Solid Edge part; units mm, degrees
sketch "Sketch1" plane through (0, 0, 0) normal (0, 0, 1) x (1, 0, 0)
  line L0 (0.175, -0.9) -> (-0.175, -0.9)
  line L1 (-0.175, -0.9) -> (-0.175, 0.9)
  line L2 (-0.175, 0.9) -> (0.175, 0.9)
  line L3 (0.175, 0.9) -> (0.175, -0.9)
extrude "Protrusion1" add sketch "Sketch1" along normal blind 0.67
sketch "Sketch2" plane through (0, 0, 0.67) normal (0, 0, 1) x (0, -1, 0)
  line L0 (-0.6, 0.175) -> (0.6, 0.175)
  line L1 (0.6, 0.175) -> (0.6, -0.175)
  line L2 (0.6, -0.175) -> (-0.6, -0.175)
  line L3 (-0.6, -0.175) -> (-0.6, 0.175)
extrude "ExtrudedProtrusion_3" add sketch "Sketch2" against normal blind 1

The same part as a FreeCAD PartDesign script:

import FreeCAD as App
import Part
import Sketcher

V = App.Vector
Q = App.Units.Quantity


def add_polygon(sketch, points):
    """Adds a closed chain of lines whose ends are joined by coincident constraints."""
    first, n = sketch.GeometryCount, len(points)
    for a, b in zip(points, points[1:] + points[:1]):
        sketch.addGeometry(Part.LineSegment(App.Vector(*a, 0), App.Vector(*b, 0)), False)
    for i in range(n):
        sketch.addConstraint(Sketcher.Constraint("Coincident", first + i, 2, first + (i + 1) % n, 1))

doc = App.newDocument("Part")
params = doc.addObject("Spreadsheet::Sheet", "Params")
for row, (alias, value) in enumerate([
    ("sketch1_height", "1.8 mm"),
    ("sketch1_width", "0.35 mm"),
    ("pad1_length", "0.67 mm"),
    ("sketch2_height", "1.2 mm"),
    ("sketch2_width", "0.35 mm"),
    ("pad2_length", "1 mm"),
], start=1):
    params.set(f"A{row}", alias)
    params.set(f"B{row}", "=" + value)
    params.setAlias(f"B{row}", alias)

body = doc.addObject("PartDesign::Body", "Body")

# Sketch on XY plane
sketch1 = doc.addObject("Sketcher::SketchObject", "Sketch")
body.addObject(sketch1)
sketch1.AttachmentSupport = (doc.XY_Plane, [""])
sketch1.MapMode = "FlatFace"
add_polygon(sketch1, [(-0.175, -0.9), (0.175, -0.9), (0.175, 0.9), (-0.175, 0.9)])  # lines 0-3
sketch1.addConstraint(Sketcher.Constraint("Horizontal", 0))
sketch1.addConstraint(Sketcher.Constraint("Vertical", 1))
sketch1.addConstraint(Sketcher.Constraint("Horizontal", 2))
sketch1.addConstraint(Sketcher.Constraint("Vertical", 3))
sketch1.addConstraint(Sketcher.Constraint("Symmetric", 0, 2, 2, 2, -1, 1))
sketch1.addConstraint(Sketcher.Constraint("DistanceY", 1, 1, 1, 2, Q("1.8 mm")))
sketch1.addConstraint(Sketcher.Constraint("DistanceX", 0, 1, 0, 2, Q("0.35 mm")))
sketch1.setExpression("Constraints[9]", "Params.sketch1_height")
sketch1.setExpression("Constraints[10]", "Params.sketch1_width")
pad1 = doc.addObject("PartDesign::Pad", "Pad")
body.addObject(pad1)
pad1.Profile = sketch1
pad1.setExpression("Length", "Params.pad1_length")

# Sketch on XY plane
sketch2 = doc.addObject("Sketcher::SketchObject", "Sketch001")
body.addObject(sketch2)
sketch2.AttachmentSupport = (doc.XY_Plane, [""])
sketch2.MapMode = "FlatFace"
sketch2.AttachmentOffset = App.Placement(V(0, 0, 0.67), App.Rotation())
add_polygon(sketch2, [(0.175, -0.6), (0.175, 0.6), (-0.175, 0.6), (-0.175, -0.6)])  # lines 0-3
sketch2.addConstraint(Sketcher.Constraint("Vertical", 0))
sketch2.addConstraint(Sketcher.Constraint("Horizontal", 1))
sketch2.addConstraint(Sketcher.Constraint("Vertical", 2))
sketch2.addConstraint(Sketcher.Constraint("Horizontal", 3))
sketch2.addConstraint(Sketcher.Constraint("Symmetric", 0, 2, 2, 2, -1, 1))
sketch2.addConstraint(Sketcher.Constraint("DistanceY", 0, 1, 0, 2, Q("1.2 mm")))
sketch2.addConstraint(Sketcher.Constraint("DistanceX", 1, 2, 1, 1, Q("0.35 mm")))
sketch2.setExpression("Constraints[9]", "Params.sketch2_height")
sketch2.setExpression("Constraints[10]", "Params.sketch2_width")
pad2 = doc.addObject("PartDesign::Pad", "Pad001")
body.addObject(pad2)
pad2.Profile = sketch2
pad2.setExpression("Length", "Params.pad2_length")
pad2.Reversed = True

doc.recompute()
